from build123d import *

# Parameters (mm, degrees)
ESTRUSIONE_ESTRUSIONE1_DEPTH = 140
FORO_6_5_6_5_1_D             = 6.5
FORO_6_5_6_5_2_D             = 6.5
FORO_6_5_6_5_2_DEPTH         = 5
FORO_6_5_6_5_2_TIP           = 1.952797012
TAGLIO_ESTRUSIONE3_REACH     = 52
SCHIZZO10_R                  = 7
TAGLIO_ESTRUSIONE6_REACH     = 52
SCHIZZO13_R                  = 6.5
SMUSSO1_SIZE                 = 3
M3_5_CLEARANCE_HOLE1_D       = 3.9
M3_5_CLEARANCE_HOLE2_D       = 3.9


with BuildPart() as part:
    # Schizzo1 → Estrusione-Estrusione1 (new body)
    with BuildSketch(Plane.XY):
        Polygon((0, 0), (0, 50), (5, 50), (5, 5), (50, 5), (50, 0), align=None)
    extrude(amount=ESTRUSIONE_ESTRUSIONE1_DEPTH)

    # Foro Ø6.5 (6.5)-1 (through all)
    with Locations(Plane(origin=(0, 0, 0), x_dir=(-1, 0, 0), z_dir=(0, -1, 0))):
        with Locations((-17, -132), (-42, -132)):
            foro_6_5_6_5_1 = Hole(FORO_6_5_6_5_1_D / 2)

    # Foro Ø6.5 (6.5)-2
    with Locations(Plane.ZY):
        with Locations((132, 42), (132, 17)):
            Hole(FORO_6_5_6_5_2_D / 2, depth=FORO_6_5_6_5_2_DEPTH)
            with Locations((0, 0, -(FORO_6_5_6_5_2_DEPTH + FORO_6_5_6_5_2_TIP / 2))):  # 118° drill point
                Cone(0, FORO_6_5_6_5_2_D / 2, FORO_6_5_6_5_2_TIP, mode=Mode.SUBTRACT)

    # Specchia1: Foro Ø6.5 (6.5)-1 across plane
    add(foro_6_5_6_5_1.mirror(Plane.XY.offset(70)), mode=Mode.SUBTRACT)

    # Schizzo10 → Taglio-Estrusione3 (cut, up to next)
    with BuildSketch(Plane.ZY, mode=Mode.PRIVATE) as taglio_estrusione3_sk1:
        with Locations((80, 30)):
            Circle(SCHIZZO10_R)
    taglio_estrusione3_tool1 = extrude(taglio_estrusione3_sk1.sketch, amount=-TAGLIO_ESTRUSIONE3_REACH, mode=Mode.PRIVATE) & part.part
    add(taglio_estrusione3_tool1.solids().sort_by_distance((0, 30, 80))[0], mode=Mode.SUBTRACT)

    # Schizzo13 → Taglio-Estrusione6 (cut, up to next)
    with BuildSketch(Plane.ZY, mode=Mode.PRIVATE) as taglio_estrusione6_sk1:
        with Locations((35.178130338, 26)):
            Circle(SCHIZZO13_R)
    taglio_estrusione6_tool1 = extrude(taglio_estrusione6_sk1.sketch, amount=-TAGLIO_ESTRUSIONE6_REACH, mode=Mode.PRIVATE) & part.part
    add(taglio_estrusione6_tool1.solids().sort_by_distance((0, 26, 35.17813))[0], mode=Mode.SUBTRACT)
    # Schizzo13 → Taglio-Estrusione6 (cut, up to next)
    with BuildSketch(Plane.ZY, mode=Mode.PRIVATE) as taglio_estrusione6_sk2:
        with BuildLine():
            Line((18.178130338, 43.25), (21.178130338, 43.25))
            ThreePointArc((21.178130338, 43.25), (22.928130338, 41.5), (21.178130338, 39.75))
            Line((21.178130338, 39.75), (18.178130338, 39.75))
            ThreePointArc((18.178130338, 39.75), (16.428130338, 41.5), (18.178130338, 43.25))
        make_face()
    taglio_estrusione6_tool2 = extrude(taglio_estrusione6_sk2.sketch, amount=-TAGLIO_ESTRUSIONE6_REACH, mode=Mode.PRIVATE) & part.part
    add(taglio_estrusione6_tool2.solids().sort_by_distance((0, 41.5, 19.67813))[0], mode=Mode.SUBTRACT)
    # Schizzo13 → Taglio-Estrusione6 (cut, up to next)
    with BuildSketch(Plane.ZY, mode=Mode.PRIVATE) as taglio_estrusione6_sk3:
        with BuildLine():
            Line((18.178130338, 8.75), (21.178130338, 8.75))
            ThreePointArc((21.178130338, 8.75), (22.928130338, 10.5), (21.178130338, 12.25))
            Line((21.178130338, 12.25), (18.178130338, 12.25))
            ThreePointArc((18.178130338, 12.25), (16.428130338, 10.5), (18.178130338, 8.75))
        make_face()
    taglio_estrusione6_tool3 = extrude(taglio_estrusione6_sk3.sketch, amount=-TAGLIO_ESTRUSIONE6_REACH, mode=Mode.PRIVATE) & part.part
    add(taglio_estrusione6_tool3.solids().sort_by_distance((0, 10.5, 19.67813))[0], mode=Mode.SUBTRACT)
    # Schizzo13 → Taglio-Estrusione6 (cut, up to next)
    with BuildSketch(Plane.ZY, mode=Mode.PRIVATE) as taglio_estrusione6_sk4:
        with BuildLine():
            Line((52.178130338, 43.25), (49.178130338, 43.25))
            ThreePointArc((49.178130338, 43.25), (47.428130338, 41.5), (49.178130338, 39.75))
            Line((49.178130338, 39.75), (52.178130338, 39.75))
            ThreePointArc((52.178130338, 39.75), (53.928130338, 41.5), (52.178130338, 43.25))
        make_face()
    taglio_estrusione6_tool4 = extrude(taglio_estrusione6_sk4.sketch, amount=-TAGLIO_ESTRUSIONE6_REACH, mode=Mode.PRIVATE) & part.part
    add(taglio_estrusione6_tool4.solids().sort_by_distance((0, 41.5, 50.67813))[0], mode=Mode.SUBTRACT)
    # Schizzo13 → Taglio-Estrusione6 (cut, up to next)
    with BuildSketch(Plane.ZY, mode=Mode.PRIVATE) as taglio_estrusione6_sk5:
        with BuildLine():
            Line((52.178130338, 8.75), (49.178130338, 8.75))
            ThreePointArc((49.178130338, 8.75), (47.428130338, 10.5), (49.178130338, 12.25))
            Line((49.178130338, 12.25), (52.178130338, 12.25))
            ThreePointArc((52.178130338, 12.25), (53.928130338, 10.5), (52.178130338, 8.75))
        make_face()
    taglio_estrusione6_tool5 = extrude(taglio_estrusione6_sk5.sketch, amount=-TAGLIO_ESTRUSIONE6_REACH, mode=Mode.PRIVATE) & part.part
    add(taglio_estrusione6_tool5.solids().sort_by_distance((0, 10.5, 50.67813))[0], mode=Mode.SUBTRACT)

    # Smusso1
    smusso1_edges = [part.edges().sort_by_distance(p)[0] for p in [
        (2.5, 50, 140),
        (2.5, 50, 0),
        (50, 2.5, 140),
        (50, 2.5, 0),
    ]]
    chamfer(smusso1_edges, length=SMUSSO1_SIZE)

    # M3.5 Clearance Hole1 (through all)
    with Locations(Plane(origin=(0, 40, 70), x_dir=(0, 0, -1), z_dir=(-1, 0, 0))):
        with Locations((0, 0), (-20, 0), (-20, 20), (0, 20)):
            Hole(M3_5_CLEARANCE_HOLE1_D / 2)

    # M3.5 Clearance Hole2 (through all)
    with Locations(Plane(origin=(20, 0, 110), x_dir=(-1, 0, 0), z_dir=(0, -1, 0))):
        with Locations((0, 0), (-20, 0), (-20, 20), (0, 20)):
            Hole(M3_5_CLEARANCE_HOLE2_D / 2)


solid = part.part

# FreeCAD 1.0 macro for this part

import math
import FreeCAD as App
import Part
import Sketcher
from FreeCAD import Vector


def edges_at(feature, points):
    """Names of the edges that pass closest to the given points."""
    edges = feature.Shape.Edges
    near = lambda p: min(range(len(edges)), key=lambda i: edges[i].distToShape(Part.Vertex(*p))[0])
    return sorted({f"Edge{near(p) + 1}" for p in points})

doc = App.newDocument("Part")
params = doc.addObject("Spreadsheet::Sheet", "Params")
for row, (alias, value) in enumerate([
    ("sketch1_width", "50 mm"),
    ("sketch1_width2", "45 mm"),
    ("pad1_length", "140 mm"),
    ("sketch2_diameter", "6.5 mm"),
    ("hole_diameter", "6.5 mm"),
    ("sketch3_diameter", "6.5 mm"),
    ("hole2_diameter", "6.5 mm"),
    ("hole2_depth", "5 mm"),
    ("sketch4_diameter", "14 mm"),
    ("sketch5_diameter", "13 mm"),
    ("sketch6_height", "3 mm"),
    ("sketch6_radius", "1.75 mm"),
    ("sketch7_height", "3 mm"),
    ("sketch7_radius", "1.75 mm"),
    ("sketch8_height", "3 mm"),
    ("sketch8_radius", "1.75 mm"),
    ("sketch9_height", "3 mm"),
    ("sketch9_radius", "1.75 mm"),
    ("chamfer_size", "3 mm"),
    ("sketch10_diameter", "3.9 mm"),
    ("hole3_diameter", "3.9 mm"),
    ("sketch11_diameter", "3.9 mm"),
    ("hole4_diameter", "3.9 mm"),
], start=1):
    params.set(f"A{row}", alias)
    params.set(f"B{row}", "=" + value)
    params.setAlias(f"B{row}", alias)

body = doc.addObject("PartDesign::Body", "Body")

# Sketch on XY plane
sketch1 = body.newObject("Sketcher::SketchObject", "Sketch")
sketch1.AttachmentSupport = (doc.getObject("XY_Plane"), [""])
sketch1.MapMode = "FlatFace"
sketch1.addGeometry(Part.LineSegment(Vector(0, 50, 0), Vector(0, 0, 0)), False)
sketch1.addGeometry(Part.LineSegment(Vector(0, 0, 0), Vector(50, 0, 0)), False)
sketch1.addGeometry(Part.LineSegment(Vector(50, 0, 0), Vector(50, 5, 0)), False)
sketch1.addGeometry(Part.LineSegment(Vector(50, 5, 0), Vector(5, 5, 0)), False)
sketch1.addGeometry(Part.LineSegment(Vector(5, 5, 0), Vector(5, 50, 0)), False)
sketch1.addGeometry(Part.LineSegment(Vector(5, 50, 0), Vector(0, 50, 0)), False)
sketch1.addConstraint(Sketcher.Constraint("Coincident", 0, 2, 1, 1))
sketch1.addConstraint(Sketcher.Constraint("Coincident", 1, 2, 2, 1))
sketch1.addConstraint(Sketcher.Constraint("Coincident", 2, 2, 3, 1))
sketch1.addConstraint(Sketcher.Constraint("Coincident", 3, 2, 4, 1))
sketch1.addConstraint(Sketcher.Constraint("Coincident", 4, 2, 5, 1))
sketch1.addConstraint(Sketcher.Constraint("Coincident", 5, 2, 0, 1))
sketch1.addConstraint(Sketcher.Constraint("Vertical", 0))
sketch1.addConstraint(Sketcher.Constraint("Horizontal", 1))
sketch1.addConstraint(Sketcher.Constraint("Vertical", 2))
sketch1.addConstraint(Sketcher.Constraint("Horizontal", 3))
sketch1.addConstraint(Sketcher.Constraint("Vertical", 4))
sketch1.addConstraint(Sketcher.Constraint("Horizontal", 5))
sketch1.addConstraint(Sketcher.Constraint("Coincident", 0, 2, -1, 1))
sketch1.addConstraint(Sketcher.Constraint("Equal", 1, 0))
sketch1.addConstraint(Sketcher.Constraint("Equal", 5, 2))
sketch1.addConstraint(Sketcher.Constraint("DistanceX", 1, 1, 1, 2, 50.0))
sketch1.addConstraint(Sketcher.Constraint("DistanceX", 3, 2, 3, 1, 45.0))
sketch1.setExpression("Constraints[15]", "Params.sketch1_width")
sketch1.setExpression("Constraints[16]", "Params.sketch1_width2")
pad1 = body.newObject("PartDesign::Pad", "Pad")
pad1.Profile = sketch1
pad1.setExpression("Length", "Params.pad1_length")

# Sketch on XZ plane
sketch2 = body.newObject("Sketcher::SketchObject", "Sketch001")
sketch2.AttachmentSupport = (doc.getObject("XZ_Plane"), [""])
sketch2.MapMode = "FlatFace"
sketch2.addGeometry(Part.Circle(Vector(17, 132, 0), Vector(0, 0, 1), 3.2), False)
sketch2.addGeometry(Part.Circle(Vector(42, 132, 0), Vector(0, 0, 1), 3.2), False)
sketch2.addConstraint(Sketcher.Constraint("Equal", 0, 1))
sketch2.addConstraint(Sketcher.Constraint("Horizontal", 0, 3, 1, 3))
sketch2.addConstraint(Sketcher.Constraint("Diameter", 0, 6.5))
sketch2.addConstraint(Sketcher.Constraint("DistanceX", -1, 1, 0, 3, 17.0))
sketch2.addConstraint(Sketcher.Constraint("DistanceY", -1, 1, 0, 3, 132.0))
sketch2.addConstraint(Sketcher.Constraint("DistanceX", -1, 1, 1, 3, 42.0))
sketch2.setExpression("Constraints[2]", "Params.sketch2_diameter")
doc.recompute()
hole = body.newObject("PartDesign::Hole", "Hole")
hole.Profile = sketch2
hole.ThreadType = "None"
hole.setExpression("Diameter", "Params.hole_diameter")
hole.DepthType = "ThroughAll"

# Sketch on YZ plane
sketch3 = body.newObject("Sketcher::SketchObject", "Sketch002")
sketch3.AttachmentSupport = (doc.getObject("YZ_Plane"), [""])
sketch3.MapMode = "FlatFace"
sketch3.addGeometry(Part.Circle(Vector(42, 132, 0), Vector(0, 0, 1), 3.2), False)
sketch3.addGeometry(Part.Circle(Vector(17, 132, 0), Vector(0, 0, 1), 3.2), False)
sketch3.addConstraint(Sketcher.Constraint("Equal", 0, 1))
sketch3.addConstraint(Sketcher.Constraint("Horizontal", 0, 3, 1, 3))
sketch3.addConstraint(Sketcher.Constraint("Diameter", 0, 6.5))
sketch3.addConstraint(Sketcher.Constraint("DistanceX", -1, 1, 0, 3, 42.0))
sketch3.addConstraint(Sketcher.Constraint("DistanceY", -1, 1, 0, 3, 132.0))
sketch3.addConstraint(Sketcher.Constraint("DistanceX", -1, 1, 1, 3, 17.0))
sketch3.setExpression("Constraints[2]", "Params.sketch3_diameter")
doc.recompute()
hole2 = body.newObject("PartDesign::Hole", "Hole001")
hole2.Profile = sketch3
hole2.ThreadType = "None"
hole2.setExpression("Diameter", "Params.hole2_diameter")
hole2.DepthType = "Dimension"
hole2.setExpression("Depth", "Params.hole2_depth")
hole2.DrillPoint = "Angled"
hole2.DrillPointAngle = 118
hole2.Reversed = True
doc.recompute()

datumplane = body.newObject("PartDesign::Plane", "DatumPlane")
datumplane.AttachmentSupport = (doc.getObject("XY_Plane"), [""])
datumplane.MapMode = "FlatFace"
datumplane.AttachmentOffset = App.Placement(Vector(0, 0, 70), App.Rotation())
mirrored = body.newObject("PartDesign::Mirrored", "Mirrored")
mirrored.Originals = [hole]
mirrored.MirrorPlane = (datumplane, [""])
body.Tip = mirrored

# Sketch on YZ plane
sketch4 = body.newObject("Sketcher::SketchObject", "Sketch003")
sketch4.AttachmentSupport = (doc.getObject("YZ_Plane"), [""])
sketch4.MapMode = "FlatFace"
sketch4.addGeometry(Part.Circle(Vector(30, 80, 0), Vector(0, 0, 1), 7), False)
sketch4.addConstraint(Sketcher.Constraint("Diameter", 0, 14.0))
sketch4.addConstraint(Sketcher.Constraint("DistanceX", -1, 1, 0, 3, 30.0))
sketch4.addConstraint(Sketcher.Constraint("DistanceY", -1, 1, 0, 3, 80.0))
sketch4.setExpression("Constraints[0]", "Params.sketch4_diameter")
pocket1 = body.newObject("PartDesign::Pocket", "Pocket")
pocket1.Profile = sketch4
pocket1.Type = "UpToFirst"
pocket1.Reversed = True

# Sketch on YZ plane
sketch5 = body.newObject("Sketcher::SketchObject", "Sketch004")
sketch5.AttachmentSupport = (doc.getObject("YZ_Plane"), [""])
sketch5.MapMode = "FlatFace"
sketch5.addGeometry(Part.Circle(Vector(26, 35, 0), Vector(0, 0, 1), 6), False)
sketch5.addConstraint(Sketcher.Constraint("Diameter", 0, 13.0))
sketch5.addConstraint(Sketcher.Constraint("DistanceX", -1, 1, 0, 3, 26.0))
sketch5.addConstraint(Sketcher.Constraint("DistanceY", -1, 1, 0, 3, 35.17813))
sketch5.setExpression("Constraints[0]", "Params.sketch5_diameter")
pocket2 = body.newObject("PartDesign::Pocket", "Pocket001")
pocket2.Profile = sketch5
pocket2.Type = "UpToFirst"
pocket2.Reversed = True

# Sketch on YZ plane
sketch6 = body.newObject("Sketcher::SketchObject", "Sketch005")
sketch6.AttachmentSupport = (doc.getObject("YZ_Plane"), [""])
sketch6.MapMode = "FlatFace"
sketch6.addGeometry(Part.LineSegment(Vector(43.2, 21.2, 0), Vector(43.2, 18.2, 0)), False)
sketch6.addGeometry(Part.ArcOfCircle(Part.Circle(Vector(41.5, 18.2, 0), Vector(0, 0, 1), 1.8), math.radians(180), math.radians(360)), False)
sketch6.addGeometry(Part.LineSegment(Vector(39.8, 18.2, 0), Vector(39.8, 21.2, 0)), False)
sketch6.addGeometry(Part.ArcOfCircle(Part.Circle(Vector(41.5, 21.2, 0), Vector(0, 0, 1), 1.8), math.radians(0), math.radians(180)), False)
sketch6.addConstraint(Sketcher.Constraint("Tangent", 0, 2, 1, 2))
sketch6.addConstraint(Sketcher.Constraint("Tangent", 1, 1, 2, 1))
sketch6.addConstraint(Sketcher.Constraint("Tangent", 2, 2, 3, 2))
sketch6.addConstraint(Sketcher.Constraint("Tangent", 3, 1, 0, 1))
sketch6.addConstraint(Sketcher.Constraint("Vertical", 0))
sketch6.addConstraint(Sketcher.Constraint("Vertical", 2))
sketch6.addConstraint(Sketcher.Constraint("DistanceY", 0, 2, 0, 1, 3.0))
sketch6.addConstraint(Sketcher.Constraint("Radius", 1, 1.75))
sketch6.addConstraint(Sketcher.Constraint("DistanceX", -1, 1, 1, 3, 41.5))
sketch6.addConstraint(Sketcher.Constraint("DistanceY", -1, 1, 1, 3, 18.17813))
sketch6.setExpression("Constraints[6]", "Params.sketch6_height")
sketch6.setExpression("Constraints[7]", "Params.sketch6_radius")
pocket3 = body.newObject("PartDesign::Pocket", "Pocket002")
pocket3.Profile = sketch6
pocket3.Type = "UpToFirst"
pocket3.Reversed = True

# Sketch on YZ plane
sketch7 = body.newObject("Sketcher::SketchObject", "Sketch006")
sketch7.AttachmentSupport = (doc.getObject("YZ_Plane"), [""])
sketch7.MapMode = "FlatFace"
sketch7.addGeometry(Part.LineSegment(Vector(8.8, 18.2, 0), Vector(8.8, 21.2, 0)), False)
sketch7.addGeometry(Part.ArcOfCircle(Part.Circle(Vector(10.5, 21.2, 0), Vector(0, 0, 1), 1.8), math.radians(0), math.radians(180)), False)
sketch7.addGeometry(Part.LineSegment(Vector(12.2, 21.2, 0), Vector(12.2, 18.2, 0)), False)
sketch7.addGeometry(Part.ArcOfCircle(Part.Circle(Vector(10.5, 18.2, 0), Vector(0, 0, 1), 1.8), math.radians(180), math.radians(360)), False)
sketch7.addConstraint(Sketcher.Constraint("Tangent", 0, 2, 1, 2))
sketch7.addConstraint(Sketcher.Constraint("Tangent", 1, 1, 2, 1))
sketch7.addConstraint(Sketcher.Constraint("Tangent", 2, 2, 3, 2))
sketch7.addConstraint(Sketcher.Constraint("Tangent", 3, 1, 0, 1))
sketch7.addConstraint(Sketcher.Constraint("Vertical", 0))
sketch7.addConstraint(Sketcher.Constraint("Vertical", 2))
sketch7.addConstraint(Sketcher.Constraint("DistanceY", 0, 1, 0, 2, 3.0))
sketch7.addConstraint(Sketcher.Constraint("Radius", 1, 1.75))
sketch7.addConstraint(Sketcher.Constraint("DistanceX", -1, 1, 1, 3, 10.5))
sketch7.addConstraint(Sketcher.Constraint("DistanceY", -1, 1, 1, 3, 21.17813))
sketch7.setExpression("Constraints[6]", "Params.sketch7_height")
sketch7.setExpression("Constraints[7]", "Params.sketch7_radius")
pocket4 = body.newObject("PartDesign::Pocket", "Pocket003")
pocket4.Profile = sketch7
pocket4.Type = "UpToFirst"
pocket4.Reversed = True

# Sketch on YZ plane
sketch8 = body.newObject("Sketcher::SketchObject", "Sketch007")
sketch8.AttachmentSupport = (doc.getObject("YZ_Plane"), [""])
sketch8.MapMode = "FlatFace"
sketch8.addGeometry(Part.LineSegment(Vector(43.2, 52.2, 0), Vector(43.2, 49.2, 0)), False)
sketch8.addGeometry(Part.ArcOfCircle(Part.Circle(Vector(41.5, 49.2, 0), Vector(0, 0, 1), 1.8), math.radians(180), math.radians(360)), False)
sketch8.addGeometry(Part.LineSegment(Vector(39.8, 49.2, 0), Vector(39.8, 52.2, 0)), False)
sketch8.addGeometry(Part.ArcOfCircle(Part.Circle(Vector(41.5, 52.2, 0), Vector(0, 0, 1), 1.8), math.radians(0), math.radians(180)), False)
sketch8.addConstraint(Sketcher.Constraint("Tangent", 0, 2, 1, 2))
sketch8.addConstraint(Sketcher.Constraint("Tangent", 1, 1, 2, 1))
sketch8.addConstraint(Sketcher.Constraint("Tangent", 2, 2, 3, 2))
sketch8.addConstraint(Sketcher.Constraint("Tangent", 3, 1, 0, 1))
sketch8.addConstraint(Sketcher.Constraint("Vertical", 0))
sketch8.addConstraint(Sketcher.Constraint("Vertical", 2))
sketch8.addConstraint(Sketcher.Constraint("DistanceY", 0, 2, 0, 1, 3.0))
sketch8.addConstraint(Sketcher.Constraint("Radius", 1, 1.75))
sketch8.addConstraint(Sketcher.Constraint("DistanceX", -1, 1, 1, 3, 41.5))
sketch8.addConstraint(Sketcher.Constraint("DistanceY", -1, 1, 1, 3, 49.17813))
sketch8.setExpression("Constraints[6]", "Params.sketch8_height")
sketch8.setExpression("Constraints[7]", "Params.sketch8_radius")
pocket5 = body.newObject("PartDesign::Pocket", "Pocket004")
pocket5.Profile = sketch8
pocket5.Type = "UpToFirst"
pocket5.Reversed = True

# Sketch on YZ plane
sketch9 = body.newObject("Sketcher::SketchObject", "Sketch008")
sketch9.AttachmentSupport = (doc.getObject("YZ_Plane"), [""])
sketch9.MapMode = "FlatFace"
sketch9.addGeometry(Part.LineSegment(Vector(8.8, 49.2, 0), Vector(8.8, 52.2, 0)), False)
sketch9.addGeometry(Part.ArcOfCircle(Part.Circle(Vector(10.5, 52.2, 0), Vector(0, 0, 1), 1.8), math.radians(0), math.radians(180)), False)
sketch9.addGeometry(Part.LineSegment(Vector(12.2, 52.2, 0), Vector(12.2, 49.2, 0)), False)
sketch9.addGeometry(Part.ArcOfCircle(Part.Circle(Vector(10.5, 49.2, 0), Vector(0, 0, 1), 1.8), math.radians(180), math.radians(360)), False)
sketch9.addConstraint(Sketcher.Constraint("Tangent", 0, 2, 1, 2))
sketch9.addConstraint(Sketcher.Constraint("Tangent", 1, 1, 2, 1))
sketch9.addConstraint(Sketcher.Constraint("Tangent", 2, 2, 3, 2))
sketch9.addConstraint(Sketcher.Constraint("Tangent", 3, 1, 0, 1))
sketch9.addConstraint(Sketcher.Constraint("Vertical", 0))
sketch9.addConstraint(Sketcher.Constraint("Vertical", 2))
sketch9.addConstraint(Sketcher.Constraint("DistanceY", 0, 1, 0, 2, 3.0))
sketch9.addConstraint(Sketcher.Constraint("Radius", 1, 1.75))
sketch9.addConstraint(Sketcher.Constraint("DistanceX", -1, 1, 1, 3, 10.5))
sketch9.addConstraint(Sketcher.Constraint("DistanceY", -1, 1, 1, 3, 52.17813))
sketch9.setExpression("Constraints[6]", "Params.sketch9_height")
sketch9.setExpression("Constraints[7]", "Params.sketch9_radius")
pocket6 = body.newObject("PartDesign::Pocket", "Pocket005")
pocket6.Profile = sketch9
pocket6.Type = "UpToFirst"
pocket6.Reversed = True
doc.recompute()

chamfer = body.newObject("PartDesign::Chamfer", "Chamfer")
chamfer.Base = (pocket6, edges_at(pocket6, [
    (2.5, 50, 140),
    (2.5, 50, 0),
    (50, 2.5, 140),
    (50, 2.5, 0),
]))
chamfer.setExpression("Size", "Params.chamfer_size")

# Sketch on YZ plane
sketch10 = body.newObject("Sketcher::SketchObject", "Sketch009")
sketch10.AttachmentSupport = (doc.getObject("YZ_Plane"), [""])
sketch10.MapMode = "FlatFace"
sketch10.addGeometry(Part.Circle(Vector(40, 70, 0), Vector(0, 0, 1), 1.9), False)
sketch10.addGeometry(Part.Circle(Vector(40, 90, 0), Vector(0, 0, 1), 1.9), False)
sketch10.addGeometry(Part.Circle(Vector(20, 90, 0), Vector(0, 0, 1), 1.9), False)
sketch10.addGeometry(Part.Circle(Vector(20, 70, 0), Vector(0, 0, 1), 1.9), False)
sketch10.addConstraint(Sketcher.Constraint("Equal", 0, 1))
sketch10.addConstraint(Sketcher.Constraint("Equal", 1, 2))
sketch10.addConstraint(Sketcher.Constraint("Equal", 2, 3))
sketch10.addConstraint(Sketcher.Constraint("Horizontal", 1, 3, 2, 3))
sketch10.addConstraint(Sketcher.Constraint("Horizontal", 0, 3, 3, 3))
sketch10.addConstraint(Sketcher.Constraint("Vertical", 0, 3, 1, 3))
sketch10.addConstraint(Sketcher.Constraint("Vertical", 2, 3, 3, 3))
sketch10.addConstraint(Sketcher.Constraint("Diameter", 0, 3.9))
sketch10.addConstraint(Sketcher.Constraint("DistanceX", -1, 1, 0, 3, 40.0))
sketch10.addConstraint(Sketcher.Constraint("DistanceY", -1, 1, 0, 3, 70.0))
sketch10.addConstraint(Sketcher.Constraint("DistanceY", -1, 1, 1, 3, 90.0))
sketch10.addConstraint(Sketcher.Constraint("DistanceX", -1, 1, 2, 3, 20.0))
sketch10.setExpression("Constraints[7]", "Params.sketch10_diameter")
doc.recompute()
hole3 = body.newObject("PartDesign::Hole", "Hole002")
hole3.Profile = sketch10
hole3.ThreadType = "None"
hole3.setExpression("Diameter", "Params.hole3_diameter")
hole3.DepthType = "ThroughAll"
hole3.Reversed = True

# Sketch on XZ plane
sketch11 = body.newObject("Sketcher::SketchObject", "Sketch010")
sketch11.AttachmentSupport = (doc.getObject("XZ_Plane"), [""])
sketch11.MapMode = "FlatFace"
sketch11.addGeometry(Part.Circle(Vector(20, 110, 0), Vector(0, 0, 1), 1.9), False)
sketch11.addGeometry(Part.Circle(Vector(40, 110, 0), Vector(0, 0, 1), 1.9), False)
sketch11.addGeometry(Part.Circle(Vector(40, 90, 0), Vector(0, 0, 1), 1.9), False)
sketch11.addGeometry(Part.Circle(Vector(20, 90, 0), Vector(0, 0, 1), 1.9), False)
sketch11.addConstraint(Sketcher.Constraint("Equal", 0, 1))
sketch11.addConstraint(Sketcher.Constraint("Equal", 1, 2))
sketch11.addConstraint(Sketcher.Constraint("Equal", 2, 3))
sketch11.addConstraint(Sketcher.Constraint("Horizontal", 0, 3, 1, 3))
sketch11.addConstraint(Sketcher.Constraint("Horizontal", 2, 3, 3, 3))
sketch11.addConstraint(Sketcher.Constraint("Vertical", 1, 3, 2, 3))
sketch11.addConstraint(Sketcher.Constraint("Vertical", 0, 3, 3, 3))
sketch11.addConstraint(Sketcher.Constraint("Diameter", 0, 3.9))
sketch11.addConstraint(Sketcher.Constraint("DistanceX", -1, 1, 0, 3, 20.0))
sketch11.addConstraint(Sketcher.Constraint("DistanceY", -1, 1, 0, 3, 110.0))
sketch11.addConstraint(Sketcher.Constraint("DistanceX", -1, 1, 1, 3, 40.0))
sketch11.addConstraint(Sketcher.Constraint("DistanceY", -1, 1, 2, 3, 90.0))
sketch11.setExpression("Constraints[7]", "Params.sketch11_diameter")
doc.recompute()
hole4 = body.newObject("PartDesign::Hole", "Hole003")
hole4.Profile = sketch11
hole4.ThreadType = "None"
hole4.setExpression("Diameter", "Params.hole4_diameter")
hole4.DepthType = "ThroughAll"

doc.recompute()
